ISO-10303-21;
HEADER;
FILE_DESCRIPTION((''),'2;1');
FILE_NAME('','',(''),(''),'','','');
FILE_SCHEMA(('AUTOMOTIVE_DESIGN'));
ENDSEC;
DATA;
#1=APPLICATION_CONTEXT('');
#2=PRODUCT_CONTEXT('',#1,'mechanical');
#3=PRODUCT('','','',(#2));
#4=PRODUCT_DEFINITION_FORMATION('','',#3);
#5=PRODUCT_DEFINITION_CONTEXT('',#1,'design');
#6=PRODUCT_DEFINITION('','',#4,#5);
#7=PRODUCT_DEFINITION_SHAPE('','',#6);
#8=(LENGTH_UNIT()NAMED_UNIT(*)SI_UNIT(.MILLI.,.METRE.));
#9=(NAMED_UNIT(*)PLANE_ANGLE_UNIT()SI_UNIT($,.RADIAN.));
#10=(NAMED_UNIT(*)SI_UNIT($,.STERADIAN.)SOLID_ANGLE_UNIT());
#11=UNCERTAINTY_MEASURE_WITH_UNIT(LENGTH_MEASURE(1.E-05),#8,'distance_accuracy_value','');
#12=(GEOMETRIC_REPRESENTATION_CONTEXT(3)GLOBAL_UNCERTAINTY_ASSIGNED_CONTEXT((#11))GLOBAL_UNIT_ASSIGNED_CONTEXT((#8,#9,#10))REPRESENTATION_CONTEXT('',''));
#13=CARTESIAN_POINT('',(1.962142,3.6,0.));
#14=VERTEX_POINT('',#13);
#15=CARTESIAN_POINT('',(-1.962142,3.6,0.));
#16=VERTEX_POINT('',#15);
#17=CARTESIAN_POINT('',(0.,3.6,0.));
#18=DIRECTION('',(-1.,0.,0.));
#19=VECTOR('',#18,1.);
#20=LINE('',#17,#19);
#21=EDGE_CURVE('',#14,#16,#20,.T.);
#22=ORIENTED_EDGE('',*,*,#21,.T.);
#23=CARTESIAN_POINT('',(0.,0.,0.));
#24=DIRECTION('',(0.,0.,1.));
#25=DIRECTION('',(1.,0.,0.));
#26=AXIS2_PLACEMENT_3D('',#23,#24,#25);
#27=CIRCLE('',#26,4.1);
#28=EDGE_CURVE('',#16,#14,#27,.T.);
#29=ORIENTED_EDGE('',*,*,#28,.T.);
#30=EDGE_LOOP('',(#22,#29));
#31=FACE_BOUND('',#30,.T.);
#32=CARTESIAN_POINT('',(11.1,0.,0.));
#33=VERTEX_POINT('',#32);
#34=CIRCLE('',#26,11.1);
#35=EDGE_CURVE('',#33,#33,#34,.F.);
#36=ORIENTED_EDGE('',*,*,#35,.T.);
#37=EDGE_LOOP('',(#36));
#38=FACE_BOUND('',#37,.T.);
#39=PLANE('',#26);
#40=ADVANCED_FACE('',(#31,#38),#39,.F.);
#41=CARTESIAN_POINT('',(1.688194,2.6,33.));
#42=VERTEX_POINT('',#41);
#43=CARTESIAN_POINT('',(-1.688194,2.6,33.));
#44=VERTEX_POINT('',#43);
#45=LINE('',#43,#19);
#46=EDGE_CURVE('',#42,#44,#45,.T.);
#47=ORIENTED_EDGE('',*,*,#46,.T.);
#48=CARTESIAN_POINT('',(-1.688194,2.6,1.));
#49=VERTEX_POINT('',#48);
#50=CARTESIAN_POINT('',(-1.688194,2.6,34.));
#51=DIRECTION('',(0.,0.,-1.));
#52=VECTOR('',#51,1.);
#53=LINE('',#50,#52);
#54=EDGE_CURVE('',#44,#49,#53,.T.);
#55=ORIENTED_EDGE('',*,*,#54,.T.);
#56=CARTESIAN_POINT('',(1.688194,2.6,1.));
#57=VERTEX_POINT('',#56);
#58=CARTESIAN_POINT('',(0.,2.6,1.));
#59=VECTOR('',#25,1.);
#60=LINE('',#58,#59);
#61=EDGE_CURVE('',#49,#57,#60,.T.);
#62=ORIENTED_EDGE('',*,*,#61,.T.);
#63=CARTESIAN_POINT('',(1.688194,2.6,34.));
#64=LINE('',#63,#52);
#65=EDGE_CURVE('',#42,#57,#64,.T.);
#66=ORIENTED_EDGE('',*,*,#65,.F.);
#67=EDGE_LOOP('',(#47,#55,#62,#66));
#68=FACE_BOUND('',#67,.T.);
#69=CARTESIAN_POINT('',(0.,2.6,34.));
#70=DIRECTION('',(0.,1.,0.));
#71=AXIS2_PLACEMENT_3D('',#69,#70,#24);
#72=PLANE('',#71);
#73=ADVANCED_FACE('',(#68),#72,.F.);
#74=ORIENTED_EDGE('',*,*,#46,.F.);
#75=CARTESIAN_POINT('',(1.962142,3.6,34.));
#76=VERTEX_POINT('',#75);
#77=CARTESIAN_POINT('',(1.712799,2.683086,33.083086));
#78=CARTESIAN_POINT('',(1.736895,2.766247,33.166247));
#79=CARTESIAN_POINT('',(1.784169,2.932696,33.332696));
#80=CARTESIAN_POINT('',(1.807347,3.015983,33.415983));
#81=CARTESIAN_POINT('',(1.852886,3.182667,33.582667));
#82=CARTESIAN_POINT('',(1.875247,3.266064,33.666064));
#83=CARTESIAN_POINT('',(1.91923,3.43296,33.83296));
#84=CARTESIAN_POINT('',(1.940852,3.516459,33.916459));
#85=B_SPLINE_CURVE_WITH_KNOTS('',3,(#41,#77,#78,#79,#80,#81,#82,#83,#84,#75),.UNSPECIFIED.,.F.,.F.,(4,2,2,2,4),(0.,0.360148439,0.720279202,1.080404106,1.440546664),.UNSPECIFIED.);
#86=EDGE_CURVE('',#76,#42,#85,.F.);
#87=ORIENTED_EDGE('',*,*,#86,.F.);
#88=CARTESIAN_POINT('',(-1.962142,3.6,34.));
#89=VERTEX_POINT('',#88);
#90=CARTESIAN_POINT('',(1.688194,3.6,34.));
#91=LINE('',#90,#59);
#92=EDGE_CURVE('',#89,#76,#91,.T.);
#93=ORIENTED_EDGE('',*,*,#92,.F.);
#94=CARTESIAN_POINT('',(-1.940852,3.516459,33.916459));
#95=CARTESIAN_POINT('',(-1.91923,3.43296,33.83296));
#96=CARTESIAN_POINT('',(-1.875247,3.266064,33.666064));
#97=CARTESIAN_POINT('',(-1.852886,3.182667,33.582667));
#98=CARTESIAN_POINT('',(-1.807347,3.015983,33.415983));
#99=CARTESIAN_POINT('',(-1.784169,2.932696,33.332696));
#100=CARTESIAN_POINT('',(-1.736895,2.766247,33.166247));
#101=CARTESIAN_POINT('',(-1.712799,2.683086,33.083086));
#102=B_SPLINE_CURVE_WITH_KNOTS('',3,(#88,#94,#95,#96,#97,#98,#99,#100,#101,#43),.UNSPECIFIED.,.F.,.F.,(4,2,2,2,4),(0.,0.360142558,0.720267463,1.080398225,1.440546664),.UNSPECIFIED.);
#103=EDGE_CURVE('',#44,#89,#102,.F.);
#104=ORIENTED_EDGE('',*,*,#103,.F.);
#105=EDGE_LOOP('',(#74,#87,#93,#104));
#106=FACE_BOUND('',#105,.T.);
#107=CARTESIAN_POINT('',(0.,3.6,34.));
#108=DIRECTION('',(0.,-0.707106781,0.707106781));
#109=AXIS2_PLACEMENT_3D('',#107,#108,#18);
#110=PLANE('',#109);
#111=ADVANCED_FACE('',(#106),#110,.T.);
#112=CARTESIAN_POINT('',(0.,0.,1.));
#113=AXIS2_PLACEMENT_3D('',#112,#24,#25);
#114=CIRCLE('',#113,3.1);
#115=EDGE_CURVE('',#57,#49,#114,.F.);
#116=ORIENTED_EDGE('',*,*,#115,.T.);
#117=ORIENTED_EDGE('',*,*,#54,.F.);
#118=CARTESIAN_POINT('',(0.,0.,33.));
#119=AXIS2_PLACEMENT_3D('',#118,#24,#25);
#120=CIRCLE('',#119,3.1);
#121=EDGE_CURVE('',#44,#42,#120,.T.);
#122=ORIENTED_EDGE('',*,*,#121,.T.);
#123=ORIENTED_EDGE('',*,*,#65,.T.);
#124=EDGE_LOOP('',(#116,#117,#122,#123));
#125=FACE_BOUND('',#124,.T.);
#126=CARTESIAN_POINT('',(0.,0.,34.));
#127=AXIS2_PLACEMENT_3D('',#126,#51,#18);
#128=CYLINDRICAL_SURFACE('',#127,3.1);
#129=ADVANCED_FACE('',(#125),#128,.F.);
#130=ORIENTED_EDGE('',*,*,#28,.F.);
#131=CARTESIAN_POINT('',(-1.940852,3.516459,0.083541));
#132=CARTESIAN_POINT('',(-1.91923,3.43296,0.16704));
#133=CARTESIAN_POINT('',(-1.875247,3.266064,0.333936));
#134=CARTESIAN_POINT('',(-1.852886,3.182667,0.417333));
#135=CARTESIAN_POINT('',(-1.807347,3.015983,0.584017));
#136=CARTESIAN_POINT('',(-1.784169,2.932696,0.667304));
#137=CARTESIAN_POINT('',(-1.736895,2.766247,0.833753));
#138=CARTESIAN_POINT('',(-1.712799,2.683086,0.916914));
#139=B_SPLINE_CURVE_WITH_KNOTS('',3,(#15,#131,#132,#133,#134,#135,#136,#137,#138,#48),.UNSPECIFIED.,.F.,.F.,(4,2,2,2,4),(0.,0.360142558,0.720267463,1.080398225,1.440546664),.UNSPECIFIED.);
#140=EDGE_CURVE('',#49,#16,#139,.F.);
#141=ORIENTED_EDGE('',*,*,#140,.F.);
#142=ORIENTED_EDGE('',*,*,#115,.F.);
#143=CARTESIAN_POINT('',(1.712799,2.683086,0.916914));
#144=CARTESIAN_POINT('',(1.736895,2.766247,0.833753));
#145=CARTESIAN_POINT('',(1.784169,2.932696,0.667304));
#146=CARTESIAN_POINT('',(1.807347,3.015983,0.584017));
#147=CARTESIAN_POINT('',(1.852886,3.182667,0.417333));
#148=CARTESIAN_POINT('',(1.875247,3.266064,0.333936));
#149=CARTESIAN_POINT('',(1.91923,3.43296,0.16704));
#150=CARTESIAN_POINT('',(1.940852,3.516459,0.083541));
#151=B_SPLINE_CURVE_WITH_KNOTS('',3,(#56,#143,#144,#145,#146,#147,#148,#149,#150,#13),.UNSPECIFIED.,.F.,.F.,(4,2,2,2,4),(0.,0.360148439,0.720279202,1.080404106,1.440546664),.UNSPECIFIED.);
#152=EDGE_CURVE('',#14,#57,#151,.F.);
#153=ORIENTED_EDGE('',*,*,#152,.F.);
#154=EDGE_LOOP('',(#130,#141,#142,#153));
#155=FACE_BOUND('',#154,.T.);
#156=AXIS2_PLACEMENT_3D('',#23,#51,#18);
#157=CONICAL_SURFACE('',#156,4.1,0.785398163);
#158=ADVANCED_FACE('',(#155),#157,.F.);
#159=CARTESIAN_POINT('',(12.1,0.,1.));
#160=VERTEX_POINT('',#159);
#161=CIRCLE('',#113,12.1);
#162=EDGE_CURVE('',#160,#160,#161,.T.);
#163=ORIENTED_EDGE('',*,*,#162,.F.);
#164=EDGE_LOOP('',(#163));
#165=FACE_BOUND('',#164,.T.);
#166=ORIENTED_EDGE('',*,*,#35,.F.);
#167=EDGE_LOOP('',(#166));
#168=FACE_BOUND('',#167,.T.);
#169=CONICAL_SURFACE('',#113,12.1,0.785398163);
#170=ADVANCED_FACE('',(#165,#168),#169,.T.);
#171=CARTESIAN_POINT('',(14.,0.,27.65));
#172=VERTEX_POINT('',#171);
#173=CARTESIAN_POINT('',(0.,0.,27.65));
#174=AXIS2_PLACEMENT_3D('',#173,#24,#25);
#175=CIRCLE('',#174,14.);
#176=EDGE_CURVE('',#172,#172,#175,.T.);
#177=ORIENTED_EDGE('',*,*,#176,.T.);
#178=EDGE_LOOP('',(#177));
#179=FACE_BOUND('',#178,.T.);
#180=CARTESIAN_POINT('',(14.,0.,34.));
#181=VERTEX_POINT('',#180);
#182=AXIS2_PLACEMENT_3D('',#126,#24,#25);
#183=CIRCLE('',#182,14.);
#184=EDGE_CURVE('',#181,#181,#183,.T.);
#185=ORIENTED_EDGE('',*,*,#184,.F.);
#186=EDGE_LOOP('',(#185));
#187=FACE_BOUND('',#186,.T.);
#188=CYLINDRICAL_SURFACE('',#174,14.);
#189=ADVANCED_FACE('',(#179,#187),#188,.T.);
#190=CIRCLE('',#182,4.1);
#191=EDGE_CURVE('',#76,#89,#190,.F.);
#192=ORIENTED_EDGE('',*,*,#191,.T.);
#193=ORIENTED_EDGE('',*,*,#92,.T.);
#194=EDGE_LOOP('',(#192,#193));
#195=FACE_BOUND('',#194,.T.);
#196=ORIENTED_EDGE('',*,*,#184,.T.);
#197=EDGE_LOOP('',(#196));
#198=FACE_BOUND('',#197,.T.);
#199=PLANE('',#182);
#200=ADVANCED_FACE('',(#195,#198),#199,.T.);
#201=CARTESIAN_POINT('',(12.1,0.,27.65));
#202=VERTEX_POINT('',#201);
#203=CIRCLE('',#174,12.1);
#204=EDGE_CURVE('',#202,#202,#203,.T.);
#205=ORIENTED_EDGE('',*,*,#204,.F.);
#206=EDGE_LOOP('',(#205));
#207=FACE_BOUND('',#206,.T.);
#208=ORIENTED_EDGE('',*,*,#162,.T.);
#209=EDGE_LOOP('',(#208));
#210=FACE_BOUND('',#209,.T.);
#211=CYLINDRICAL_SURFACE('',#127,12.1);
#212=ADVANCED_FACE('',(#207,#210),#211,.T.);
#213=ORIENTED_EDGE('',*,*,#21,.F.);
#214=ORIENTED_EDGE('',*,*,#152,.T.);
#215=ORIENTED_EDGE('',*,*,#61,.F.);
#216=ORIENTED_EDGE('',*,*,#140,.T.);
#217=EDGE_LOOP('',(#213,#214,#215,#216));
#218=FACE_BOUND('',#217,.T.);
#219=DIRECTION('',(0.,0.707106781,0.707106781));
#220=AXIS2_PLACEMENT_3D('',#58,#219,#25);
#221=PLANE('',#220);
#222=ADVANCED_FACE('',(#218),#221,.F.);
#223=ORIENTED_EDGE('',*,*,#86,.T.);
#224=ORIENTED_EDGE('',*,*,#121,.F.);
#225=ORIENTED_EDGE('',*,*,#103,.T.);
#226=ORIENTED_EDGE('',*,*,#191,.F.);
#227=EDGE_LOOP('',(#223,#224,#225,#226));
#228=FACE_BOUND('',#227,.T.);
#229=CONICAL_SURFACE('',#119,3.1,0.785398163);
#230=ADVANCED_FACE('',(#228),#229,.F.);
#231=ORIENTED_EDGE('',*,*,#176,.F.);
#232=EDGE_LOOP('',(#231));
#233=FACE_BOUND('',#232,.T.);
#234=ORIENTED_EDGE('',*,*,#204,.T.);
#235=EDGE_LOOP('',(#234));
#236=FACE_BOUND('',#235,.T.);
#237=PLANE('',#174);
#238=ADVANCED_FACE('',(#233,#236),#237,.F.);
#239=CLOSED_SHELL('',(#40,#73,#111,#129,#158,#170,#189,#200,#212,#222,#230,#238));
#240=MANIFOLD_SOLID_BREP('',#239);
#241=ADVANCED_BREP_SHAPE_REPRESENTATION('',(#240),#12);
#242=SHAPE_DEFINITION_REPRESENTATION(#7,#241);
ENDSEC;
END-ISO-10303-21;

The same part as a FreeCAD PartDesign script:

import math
import FreeCAD as App
import Part
import Sketcher
from FreeCAD import Vector


def edges_at(feature, points):
    """Names of the edges that pass closest to the given points."""
    edges = feature.Shape.Edges
    near = lambda p: min(range(len(edges)), key=lambda i: edges[i].distToShape(Part.Vertex(*p))[0])
    return sorted({f"Edge{near(p) + 1}" for p in points})

doc = App.newDocument("Part")
params = doc.addObject("Spreadsheet::Sheet", "Params")
for row, (alias, value) in enumerate([
    ("sketch1_diameter", "24.2 mm"),
    ("sketch1_radius", "3.1 mm"),
    ("pad1_length", "34 mm"),
    ("sketch2_diameter", "28 mm"),
    ("sketch2_radius", "3.1 mm"),
    ("pad2_length", "6.35 mm"),
    ("chamfer_size", "1 mm"),
], start=1):
    params.set(f"A{row}", alias)
    params.set(f"B{row}", "=" + value)
    params.setAlias(f"B{row}", alias)

body = doc.addObject("PartDesign::Body", "Body")

# Sketch on XY plane
sketch1 = body.newObject("Sketcher::SketchObject", "Sketch")
sketch1.AttachmentSupport = (doc.getObject("XY_Plane"), [""])
sketch1.MapMode = "FlatFace"
sketch1.addGeometry([
    Part.Circle(Vector(0, 0, 0), Vector(0, 0, 1), 12.1),
    Part.ArcOfCircle(Part.Circle(Vector(0, 0, 0), Vector(0, 0, 1), 3.1), math.radians(123), math.radians(417)),
    Part.LineSegment(Vector(-1.7, 2.6, 0), Vector(1.7, 2.6, 0)),
], False)
sketch1.addConstraint([
    Sketcher.Constraint("Coincident", 1, 1, 2, 1),
    Sketcher.Constraint("Coincident", 2, 2, 1, 2),
    Sketcher.Constraint("Horizontal", 2),
    Sketcher.Constraint("Coincident", 0, 3, -1, 1),
    Sketcher.Constraint("Coincident", 1, 3, -1, 1),
    Sketcher.Constraint("Diameter", 0, 24.2),
    Sketcher.Constraint("Radius", 1, 3.1),
    Sketcher.Constraint("DistanceY", -1, 1, 1, 1, 2.6),
])
sketch1.setExpression("Constraints[5]", "Params.sketch1_diameter")
sketch1.setExpression("Constraints[6]", "Params.sketch1_radius")
pad1 = body.newObject("PartDesign::Pad", "Pad")
pad1.Profile = sketch1
pad1.setExpression("Length", "Params.pad1_length")

# Sketch on XY plane
sketch2 = body.newObject("Sketcher::SketchObject", "Sketch001")
sketch2.AttachmentSupport = (doc.getObject("XY_Plane"), [""])
sketch2.MapMode = "FlatFace"
sketch2.AttachmentOffset = App.Placement(Vector(0, 0, 27.65), App.Rotation())
sketch2.addGeometry([
    Part.Circle(Vector(0, 0, 0), Vector(0, 0, 1), 14),
    Part.LineSegment(Vector(-1.7, 2.6, 0), Vector(1.7, 2.6, 0)),
    Part.ArcOfCircle(Part.Circle(Vector(0, 0, 0), Vector(0, 0, 1), 3.1), math.radians(123), math.radians(417)),
], False)
sketch2.addConstraint([
    Sketcher.Constraint("Coincident", 1, 1, 2, 1),
    Sketcher.Constraint("Coincident", 2, 2, 1, 2),
    Sketcher.Constraint("Horizontal", 1),
    Sketcher.Constraint("Coincident", 0, 3, -1, 1),
    Sketcher.Constraint("Coincident", 2, 3, -1, 1),
    Sketcher.Constraint("Diameter", 0, 28.0),
    Sketcher.Constraint("Radius", 2, 3.1),
    Sketcher.Constraint("DistanceY", -1, 1, 1, 1, 2.6),
])
sketch2.setExpression("Constraints[5]", "Params.sketch2_diameter")
sketch2.setExpression("Constraints[6]", "Params.sketch2_radius")
pad2 = body.newObject("PartDesign::Pad", "Pad001")
pad2.Profile = sketch2
pad2.setExpression("Length", "Params.pad2_length")
doc.recompute()

chamfer = body.newObject("PartDesign::Chamfer", "Chamfer")
chamfer.Base = (pad2, edges_at(pad2, [
    (0, 2.6, 34),
    (-12.1, 0, 0),
    (0, 2.6, 0),
    (0, -3.1, 0),
    (0, -3.1, 34),
]))
chamfer.setExpression("Size", "Params.chamfer_size")

doc.recompute()
